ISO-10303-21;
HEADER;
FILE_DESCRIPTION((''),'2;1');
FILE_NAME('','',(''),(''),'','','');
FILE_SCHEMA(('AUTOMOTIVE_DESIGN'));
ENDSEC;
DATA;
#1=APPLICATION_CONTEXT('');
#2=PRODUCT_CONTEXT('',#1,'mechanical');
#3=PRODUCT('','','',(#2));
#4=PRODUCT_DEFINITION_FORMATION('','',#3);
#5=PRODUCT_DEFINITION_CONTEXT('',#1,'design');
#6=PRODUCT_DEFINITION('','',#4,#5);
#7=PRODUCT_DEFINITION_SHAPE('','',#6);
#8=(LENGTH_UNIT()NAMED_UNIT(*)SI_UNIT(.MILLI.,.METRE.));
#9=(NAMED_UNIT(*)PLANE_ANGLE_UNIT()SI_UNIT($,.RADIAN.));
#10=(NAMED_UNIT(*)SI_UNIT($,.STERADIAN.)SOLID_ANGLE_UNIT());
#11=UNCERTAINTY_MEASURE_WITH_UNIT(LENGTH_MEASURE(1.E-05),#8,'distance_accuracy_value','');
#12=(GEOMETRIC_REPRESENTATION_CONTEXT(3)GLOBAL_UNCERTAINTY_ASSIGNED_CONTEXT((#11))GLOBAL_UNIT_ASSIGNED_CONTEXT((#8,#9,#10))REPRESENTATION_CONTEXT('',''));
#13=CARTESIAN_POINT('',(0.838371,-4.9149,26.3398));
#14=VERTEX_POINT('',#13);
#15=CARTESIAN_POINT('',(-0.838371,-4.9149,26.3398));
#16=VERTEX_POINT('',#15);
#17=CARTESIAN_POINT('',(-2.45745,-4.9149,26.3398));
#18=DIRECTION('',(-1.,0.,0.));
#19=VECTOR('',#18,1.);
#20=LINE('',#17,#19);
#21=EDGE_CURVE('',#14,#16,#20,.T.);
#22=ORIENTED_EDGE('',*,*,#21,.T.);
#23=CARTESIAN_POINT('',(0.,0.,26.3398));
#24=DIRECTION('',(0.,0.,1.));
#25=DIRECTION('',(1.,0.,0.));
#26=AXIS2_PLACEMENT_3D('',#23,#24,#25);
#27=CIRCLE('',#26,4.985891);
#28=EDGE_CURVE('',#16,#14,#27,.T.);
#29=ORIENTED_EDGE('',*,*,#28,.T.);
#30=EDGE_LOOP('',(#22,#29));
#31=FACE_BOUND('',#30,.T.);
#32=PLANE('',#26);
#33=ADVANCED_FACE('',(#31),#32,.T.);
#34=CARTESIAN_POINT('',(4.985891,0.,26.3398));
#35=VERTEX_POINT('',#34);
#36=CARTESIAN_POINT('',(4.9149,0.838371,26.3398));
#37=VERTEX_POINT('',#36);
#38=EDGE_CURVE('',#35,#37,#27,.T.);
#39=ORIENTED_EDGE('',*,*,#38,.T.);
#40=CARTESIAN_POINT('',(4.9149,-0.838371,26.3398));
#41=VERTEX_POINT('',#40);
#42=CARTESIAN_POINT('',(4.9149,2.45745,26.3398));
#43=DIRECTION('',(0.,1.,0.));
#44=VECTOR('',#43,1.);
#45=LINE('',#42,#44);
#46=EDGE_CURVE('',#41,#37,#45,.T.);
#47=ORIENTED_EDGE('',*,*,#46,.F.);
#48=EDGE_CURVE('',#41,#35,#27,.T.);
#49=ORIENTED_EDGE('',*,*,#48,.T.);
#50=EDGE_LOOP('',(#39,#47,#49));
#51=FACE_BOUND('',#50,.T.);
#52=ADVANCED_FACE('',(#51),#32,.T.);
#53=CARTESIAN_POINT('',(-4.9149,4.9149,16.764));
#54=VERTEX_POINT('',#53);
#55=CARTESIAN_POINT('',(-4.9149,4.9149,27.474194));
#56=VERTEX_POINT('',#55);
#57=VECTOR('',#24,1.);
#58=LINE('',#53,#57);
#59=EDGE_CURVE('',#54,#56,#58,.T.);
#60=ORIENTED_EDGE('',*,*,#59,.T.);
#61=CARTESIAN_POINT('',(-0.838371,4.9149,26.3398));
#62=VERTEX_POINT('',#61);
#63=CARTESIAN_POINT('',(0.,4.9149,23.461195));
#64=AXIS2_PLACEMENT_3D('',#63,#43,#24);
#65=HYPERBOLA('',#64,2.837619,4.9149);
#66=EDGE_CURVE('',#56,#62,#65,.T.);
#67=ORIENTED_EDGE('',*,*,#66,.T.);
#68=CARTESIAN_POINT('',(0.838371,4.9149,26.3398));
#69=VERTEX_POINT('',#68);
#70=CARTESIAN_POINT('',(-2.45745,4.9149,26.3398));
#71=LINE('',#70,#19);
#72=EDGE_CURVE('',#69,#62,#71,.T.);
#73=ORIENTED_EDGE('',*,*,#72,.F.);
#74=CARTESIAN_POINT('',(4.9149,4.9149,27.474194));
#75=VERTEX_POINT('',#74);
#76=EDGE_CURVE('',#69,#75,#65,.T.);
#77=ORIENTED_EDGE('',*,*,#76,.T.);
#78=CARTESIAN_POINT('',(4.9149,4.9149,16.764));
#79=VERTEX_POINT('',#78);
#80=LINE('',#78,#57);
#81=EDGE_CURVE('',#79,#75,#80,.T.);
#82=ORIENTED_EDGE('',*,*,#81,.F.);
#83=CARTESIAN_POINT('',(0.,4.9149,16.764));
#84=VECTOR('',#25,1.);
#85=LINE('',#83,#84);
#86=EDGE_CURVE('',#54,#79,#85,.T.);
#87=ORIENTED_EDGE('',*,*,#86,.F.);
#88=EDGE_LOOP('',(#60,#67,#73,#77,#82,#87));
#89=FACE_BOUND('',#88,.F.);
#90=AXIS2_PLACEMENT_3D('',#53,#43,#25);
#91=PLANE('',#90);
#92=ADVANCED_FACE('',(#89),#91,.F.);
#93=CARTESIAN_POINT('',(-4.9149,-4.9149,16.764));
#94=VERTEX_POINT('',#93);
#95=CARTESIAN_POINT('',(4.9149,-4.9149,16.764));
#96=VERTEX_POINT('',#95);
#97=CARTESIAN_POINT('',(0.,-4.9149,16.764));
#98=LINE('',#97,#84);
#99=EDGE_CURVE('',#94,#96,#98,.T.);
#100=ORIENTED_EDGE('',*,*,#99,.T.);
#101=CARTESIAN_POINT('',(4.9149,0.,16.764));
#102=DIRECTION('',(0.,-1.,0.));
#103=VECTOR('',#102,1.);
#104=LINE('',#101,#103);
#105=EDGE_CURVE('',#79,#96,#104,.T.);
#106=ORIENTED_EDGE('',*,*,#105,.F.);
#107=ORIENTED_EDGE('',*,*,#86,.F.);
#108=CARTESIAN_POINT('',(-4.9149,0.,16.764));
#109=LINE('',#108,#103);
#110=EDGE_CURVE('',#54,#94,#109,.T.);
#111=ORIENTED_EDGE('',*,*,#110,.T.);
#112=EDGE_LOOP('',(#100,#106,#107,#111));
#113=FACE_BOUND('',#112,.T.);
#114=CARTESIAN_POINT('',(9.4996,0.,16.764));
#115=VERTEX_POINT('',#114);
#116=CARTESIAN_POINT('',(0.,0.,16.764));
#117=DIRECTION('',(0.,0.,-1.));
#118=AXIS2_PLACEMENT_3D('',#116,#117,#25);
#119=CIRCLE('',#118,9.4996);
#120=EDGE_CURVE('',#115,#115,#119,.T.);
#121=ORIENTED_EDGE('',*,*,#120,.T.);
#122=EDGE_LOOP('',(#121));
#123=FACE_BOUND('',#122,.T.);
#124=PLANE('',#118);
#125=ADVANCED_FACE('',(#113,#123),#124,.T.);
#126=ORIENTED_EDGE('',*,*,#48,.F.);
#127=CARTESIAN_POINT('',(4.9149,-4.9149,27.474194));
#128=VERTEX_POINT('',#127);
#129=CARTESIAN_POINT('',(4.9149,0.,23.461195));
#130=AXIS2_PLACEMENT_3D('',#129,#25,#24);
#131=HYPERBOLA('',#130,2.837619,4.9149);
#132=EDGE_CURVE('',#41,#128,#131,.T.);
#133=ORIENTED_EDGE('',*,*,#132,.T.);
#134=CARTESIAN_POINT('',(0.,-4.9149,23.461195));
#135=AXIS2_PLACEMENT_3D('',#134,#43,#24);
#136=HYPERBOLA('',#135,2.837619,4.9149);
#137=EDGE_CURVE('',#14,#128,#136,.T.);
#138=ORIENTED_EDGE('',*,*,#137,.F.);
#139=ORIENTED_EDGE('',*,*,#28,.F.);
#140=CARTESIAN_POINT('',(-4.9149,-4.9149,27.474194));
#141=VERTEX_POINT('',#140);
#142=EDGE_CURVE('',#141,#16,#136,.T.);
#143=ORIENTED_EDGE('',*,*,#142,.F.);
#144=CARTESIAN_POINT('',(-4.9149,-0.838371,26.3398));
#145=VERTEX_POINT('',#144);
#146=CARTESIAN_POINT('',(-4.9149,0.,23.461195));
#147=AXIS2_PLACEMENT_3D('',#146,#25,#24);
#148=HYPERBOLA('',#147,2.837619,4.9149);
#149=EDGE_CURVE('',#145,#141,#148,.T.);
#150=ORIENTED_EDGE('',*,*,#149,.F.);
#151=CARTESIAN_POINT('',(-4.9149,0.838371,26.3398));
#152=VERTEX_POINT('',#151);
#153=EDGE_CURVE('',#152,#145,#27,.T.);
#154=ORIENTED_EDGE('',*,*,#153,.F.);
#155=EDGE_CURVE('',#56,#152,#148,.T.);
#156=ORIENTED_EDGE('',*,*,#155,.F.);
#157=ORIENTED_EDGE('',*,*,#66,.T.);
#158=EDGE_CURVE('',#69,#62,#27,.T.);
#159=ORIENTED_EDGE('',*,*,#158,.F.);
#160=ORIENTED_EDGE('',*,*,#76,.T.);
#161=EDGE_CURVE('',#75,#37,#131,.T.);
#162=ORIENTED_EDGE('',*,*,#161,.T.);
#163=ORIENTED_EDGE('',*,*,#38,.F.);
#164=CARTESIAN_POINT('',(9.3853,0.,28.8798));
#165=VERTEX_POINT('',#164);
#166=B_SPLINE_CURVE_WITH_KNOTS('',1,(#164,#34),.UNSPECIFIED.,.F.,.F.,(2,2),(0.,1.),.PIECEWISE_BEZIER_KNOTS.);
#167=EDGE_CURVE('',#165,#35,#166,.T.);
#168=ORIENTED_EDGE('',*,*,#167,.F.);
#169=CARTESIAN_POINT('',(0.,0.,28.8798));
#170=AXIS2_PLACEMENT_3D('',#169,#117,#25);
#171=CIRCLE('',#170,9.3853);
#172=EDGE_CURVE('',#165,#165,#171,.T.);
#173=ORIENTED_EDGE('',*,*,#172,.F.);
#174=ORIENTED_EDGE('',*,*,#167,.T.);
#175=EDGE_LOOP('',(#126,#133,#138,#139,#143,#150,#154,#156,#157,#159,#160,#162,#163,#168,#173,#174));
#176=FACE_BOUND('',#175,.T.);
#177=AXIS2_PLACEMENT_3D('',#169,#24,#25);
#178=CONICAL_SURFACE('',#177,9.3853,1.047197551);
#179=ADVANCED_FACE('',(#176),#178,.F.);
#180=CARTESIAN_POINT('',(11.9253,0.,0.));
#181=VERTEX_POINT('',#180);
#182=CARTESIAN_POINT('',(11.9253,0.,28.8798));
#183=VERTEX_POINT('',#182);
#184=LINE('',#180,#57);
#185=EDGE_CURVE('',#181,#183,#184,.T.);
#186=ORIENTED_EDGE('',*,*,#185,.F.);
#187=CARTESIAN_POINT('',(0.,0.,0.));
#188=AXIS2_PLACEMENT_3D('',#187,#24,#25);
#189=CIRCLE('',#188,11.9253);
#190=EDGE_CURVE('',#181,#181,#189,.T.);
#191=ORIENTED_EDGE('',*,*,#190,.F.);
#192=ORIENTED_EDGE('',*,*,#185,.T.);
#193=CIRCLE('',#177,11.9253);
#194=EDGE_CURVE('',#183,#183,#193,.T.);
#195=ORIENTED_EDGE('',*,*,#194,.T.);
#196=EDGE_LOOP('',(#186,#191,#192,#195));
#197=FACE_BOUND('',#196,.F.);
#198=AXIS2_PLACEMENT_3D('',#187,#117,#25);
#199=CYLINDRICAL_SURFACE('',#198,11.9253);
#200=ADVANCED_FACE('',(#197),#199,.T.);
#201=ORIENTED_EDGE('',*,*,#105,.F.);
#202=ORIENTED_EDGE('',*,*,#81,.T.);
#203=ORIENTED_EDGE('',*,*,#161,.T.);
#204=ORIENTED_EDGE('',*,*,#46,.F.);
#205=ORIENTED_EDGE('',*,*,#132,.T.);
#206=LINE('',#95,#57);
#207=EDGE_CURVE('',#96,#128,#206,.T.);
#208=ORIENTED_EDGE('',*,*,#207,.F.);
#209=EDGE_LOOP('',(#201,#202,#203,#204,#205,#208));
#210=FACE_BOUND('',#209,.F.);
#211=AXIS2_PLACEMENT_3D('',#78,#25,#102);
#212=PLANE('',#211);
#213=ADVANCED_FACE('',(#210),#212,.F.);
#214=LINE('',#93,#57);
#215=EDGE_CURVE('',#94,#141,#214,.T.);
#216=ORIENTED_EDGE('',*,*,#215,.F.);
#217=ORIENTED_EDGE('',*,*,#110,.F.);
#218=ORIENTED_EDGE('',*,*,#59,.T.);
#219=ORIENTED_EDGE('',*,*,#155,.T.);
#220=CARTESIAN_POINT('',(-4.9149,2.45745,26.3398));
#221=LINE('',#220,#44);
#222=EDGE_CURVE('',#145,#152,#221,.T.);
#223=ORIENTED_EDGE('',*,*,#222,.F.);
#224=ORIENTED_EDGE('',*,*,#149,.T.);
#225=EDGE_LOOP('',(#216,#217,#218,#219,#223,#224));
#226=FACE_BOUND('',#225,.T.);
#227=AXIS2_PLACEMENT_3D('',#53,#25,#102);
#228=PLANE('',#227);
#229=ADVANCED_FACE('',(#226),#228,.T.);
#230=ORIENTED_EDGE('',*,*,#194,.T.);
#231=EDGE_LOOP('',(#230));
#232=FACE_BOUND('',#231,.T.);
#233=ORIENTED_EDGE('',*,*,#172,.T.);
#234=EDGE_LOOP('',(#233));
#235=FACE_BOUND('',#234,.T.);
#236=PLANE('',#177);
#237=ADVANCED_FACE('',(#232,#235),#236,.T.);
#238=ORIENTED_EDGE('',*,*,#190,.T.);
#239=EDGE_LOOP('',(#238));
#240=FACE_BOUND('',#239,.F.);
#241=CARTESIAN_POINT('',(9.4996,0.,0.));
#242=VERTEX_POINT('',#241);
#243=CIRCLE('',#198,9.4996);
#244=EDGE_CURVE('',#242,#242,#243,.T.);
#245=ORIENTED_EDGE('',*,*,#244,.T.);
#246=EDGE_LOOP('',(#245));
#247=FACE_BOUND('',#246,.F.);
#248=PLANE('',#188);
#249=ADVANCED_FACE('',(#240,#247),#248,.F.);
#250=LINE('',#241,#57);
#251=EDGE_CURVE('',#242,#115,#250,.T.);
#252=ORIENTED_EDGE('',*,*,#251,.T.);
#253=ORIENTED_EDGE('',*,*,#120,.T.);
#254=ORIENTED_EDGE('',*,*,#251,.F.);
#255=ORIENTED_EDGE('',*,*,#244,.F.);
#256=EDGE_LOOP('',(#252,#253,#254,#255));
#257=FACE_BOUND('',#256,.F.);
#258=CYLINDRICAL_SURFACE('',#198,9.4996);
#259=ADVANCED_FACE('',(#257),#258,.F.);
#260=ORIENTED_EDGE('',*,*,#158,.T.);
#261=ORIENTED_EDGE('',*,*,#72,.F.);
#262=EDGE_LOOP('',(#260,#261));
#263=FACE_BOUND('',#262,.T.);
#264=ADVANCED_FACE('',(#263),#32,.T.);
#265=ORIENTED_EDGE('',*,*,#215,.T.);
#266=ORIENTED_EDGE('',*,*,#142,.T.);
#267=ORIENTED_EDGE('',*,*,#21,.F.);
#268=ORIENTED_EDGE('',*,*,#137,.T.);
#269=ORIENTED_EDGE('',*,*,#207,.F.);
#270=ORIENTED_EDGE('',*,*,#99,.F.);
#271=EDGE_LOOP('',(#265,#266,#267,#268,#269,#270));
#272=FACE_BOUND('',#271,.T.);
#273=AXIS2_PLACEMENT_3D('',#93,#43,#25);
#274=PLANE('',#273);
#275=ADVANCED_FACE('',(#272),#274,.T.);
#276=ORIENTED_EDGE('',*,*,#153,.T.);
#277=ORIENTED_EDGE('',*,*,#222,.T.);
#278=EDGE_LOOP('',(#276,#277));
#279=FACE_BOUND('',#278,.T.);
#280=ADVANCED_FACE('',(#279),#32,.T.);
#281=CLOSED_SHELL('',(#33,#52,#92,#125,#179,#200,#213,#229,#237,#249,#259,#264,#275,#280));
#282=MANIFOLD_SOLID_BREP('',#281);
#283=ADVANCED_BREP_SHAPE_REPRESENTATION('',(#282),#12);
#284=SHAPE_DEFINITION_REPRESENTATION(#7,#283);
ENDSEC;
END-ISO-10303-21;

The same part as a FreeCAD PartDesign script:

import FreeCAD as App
import Part
import Sketcher
Q = App.Units.Quantity

doc = App.newDocument("Part")
params = doc.addObject("Spreadsheet::Sheet", "Params")
for row, (alias, value) in enumerate([
    ("sketch1_diameter", "0.939 in"),
    ("pad1_length", "1.137 in"),
    ("sketch2_diameter", "0.739 in"),
    ("pocket1_length", "0.1 in"),
    ("pocket1_taper", "-60 deg"),
    ("sketch3_diameter", "0.748 in"),
    ("pocket2_length", "0.66 in"),
    ("sketch4_width", "0.387 in"),
], start=1):
    params.set(f"A{row}", alias)
    params.set(f"B{row}", "=" + value)
    params.setAlias(f"B{row}", alias)

body = doc.addObject("PartDesign::Body", "Body")

# Sketch on XY plane
sketch1 = body.newObject("Sketcher::SketchObject", "Sketch")
sketch1.AttachmentSupport = (doc.getObject("XY_Plane"), [""])
sketch1.MapMode = "FlatFace"
sketch1.addGeometry(Part.Circle(App.Vector(0, 0, 0), App.Vector(0, 0, 1), 12), False)
sketch1.addConstraint([
    Sketcher.Constraint("Coincident", 0, 3, -1, 1),
    Sketcher.Constraint("Diameter", 0, Q("0.939 in")),
])
sketch1.setExpression("Constraints[1]", "Params.sketch1_diameter")
pad1 = body.newObject("PartDesign::Pad", "Pad")
pad1.Profile = sketch1
pad1.setExpression("Length", "Params.pad1_length")

# Sketch on XY plane
sketch2 = body.newObject("Sketcher::SketchObject", "Sketch001")
sketch2.AttachmentSupport = (doc.getObject("XY_Plane"), [""])
sketch2.MapMode = "FlatFace"
sketch2.AttachmentOffset = App.Placement(App.Vector(0, 0, 1.137 * 25.4), App.Rotation())
sketch2.addGeometry(Part.Circle(App.Vector(0, 0, 0), App.Vector(0, 0, 1), 9), False)
sketch2.addConstraint([
    Sketcher.Constraint("Coincident", 0, 3, -1, 1),
    Sketcher.Constraint("Diameter", 0, Q("0.739 in")),
])
sketch2.setExpression("Constraints[1]", "Params.sketch2_diameter")
pocket1 = body.newObject("PartDesign::Pocket", "Pocket")
pocket1.Profile = sketch2
pocket1.setExpression("Length", "Params.pocket1_length")
pocket1.setExpression("TaperAngle", "Params.pocket1_taper")

# Sketch on XY plane
sketch3 = body.newObject("Sketcher::SketchObject", "Sketch002")
sketch3.AttachmentSupport = (doc.getObject("XY_Plane"), [""])
sketch3.MapMode = "FlatFace"
sketch3.addGeometry(Part.Circle(App.Vector(0, 0, 0), App.Vector(0, 0, 1), 9), False)
sketch3.addConstraint([
    Sketcher.Constraint("Coincident", 0, 3, -1, 1),
    Sketcher.Constraint("Diameter", 0, Q("0.748 in")),
])
sketch3.setExpression("Constraints[1]", "Params.sketch3_diameter")
pocket2 = body.newObject("PartDesign::Pocket", "Pocket001")
pocket2.Profile = sketch3
pocket2.setExpression("Length", "Params.pocket2_length")
pocket2.Reversed = True

# Sketch on XY plane
sketch4 = body.newObject("Sketcher::SketchObject", "Sketch003")
sketch4.AttachmentSupport = (doc.getObject("XY_Plane"), [""])
sketch4.MapMode = "FlatFace"
sketch4.AttachmentOffset = App.Placement(App.Vector(0, 0, 0.66 * 25.4), App.Rotation())
sketch4.addGeometry([
    Part.LineSegment(App.Vector(-5, -5, 0), App.Vector(-5, 5, 0)),
    Part.LineSegment(App.Vector(-5, 5, 0), App.Vector(5, 5, 0)),
    Part.LineSegment(App.Vector(5, 5, 0), App.Vector(5, -5, 0)),
    Part.LineSegment(App.Vector(5, -5, 0), App.Vector(-5, -5, 0)),
], False)
sketch4.addConstraint([
    Sketcher.Constraint("Coincident", 0, 2, 1, 1),
    Sketcher.Constraint("Coincident", 1, 2, 2, 1),
    Sketcher.Constraint("Coincident", 2, 2, 3, 1),
    Sketcher.Constraint("Coincident", 3, 2, 0, 1),
    Sketcher.Constraint("Vertical", 0),
    Sketcher.Constraint("Horizontal", 1),
    Sketcher.Constraint("Vertical", 2),
    Sketcher.Constraint("Horizontal", 3),
    Sketcher.Constraint("Symmetric", 0, 2, 2, 2, -1, 1),
    Sketcher.Constraint("Equal", 3, 0),
    Sketcher.Constraint("DistanceX", 1, 1, 1, 2, Q("0.387 in")),
])
sketch4.setExpression("Constraints[10]", "Params.sketch4_width")
pocket3 = body.newObject("PartDesign::Pocket", "Pocket002")
pocket3.Profile = sketch4
pocket3.Type = "ThroughAll"
pocket3.Reversed = True

doc.recompute()
